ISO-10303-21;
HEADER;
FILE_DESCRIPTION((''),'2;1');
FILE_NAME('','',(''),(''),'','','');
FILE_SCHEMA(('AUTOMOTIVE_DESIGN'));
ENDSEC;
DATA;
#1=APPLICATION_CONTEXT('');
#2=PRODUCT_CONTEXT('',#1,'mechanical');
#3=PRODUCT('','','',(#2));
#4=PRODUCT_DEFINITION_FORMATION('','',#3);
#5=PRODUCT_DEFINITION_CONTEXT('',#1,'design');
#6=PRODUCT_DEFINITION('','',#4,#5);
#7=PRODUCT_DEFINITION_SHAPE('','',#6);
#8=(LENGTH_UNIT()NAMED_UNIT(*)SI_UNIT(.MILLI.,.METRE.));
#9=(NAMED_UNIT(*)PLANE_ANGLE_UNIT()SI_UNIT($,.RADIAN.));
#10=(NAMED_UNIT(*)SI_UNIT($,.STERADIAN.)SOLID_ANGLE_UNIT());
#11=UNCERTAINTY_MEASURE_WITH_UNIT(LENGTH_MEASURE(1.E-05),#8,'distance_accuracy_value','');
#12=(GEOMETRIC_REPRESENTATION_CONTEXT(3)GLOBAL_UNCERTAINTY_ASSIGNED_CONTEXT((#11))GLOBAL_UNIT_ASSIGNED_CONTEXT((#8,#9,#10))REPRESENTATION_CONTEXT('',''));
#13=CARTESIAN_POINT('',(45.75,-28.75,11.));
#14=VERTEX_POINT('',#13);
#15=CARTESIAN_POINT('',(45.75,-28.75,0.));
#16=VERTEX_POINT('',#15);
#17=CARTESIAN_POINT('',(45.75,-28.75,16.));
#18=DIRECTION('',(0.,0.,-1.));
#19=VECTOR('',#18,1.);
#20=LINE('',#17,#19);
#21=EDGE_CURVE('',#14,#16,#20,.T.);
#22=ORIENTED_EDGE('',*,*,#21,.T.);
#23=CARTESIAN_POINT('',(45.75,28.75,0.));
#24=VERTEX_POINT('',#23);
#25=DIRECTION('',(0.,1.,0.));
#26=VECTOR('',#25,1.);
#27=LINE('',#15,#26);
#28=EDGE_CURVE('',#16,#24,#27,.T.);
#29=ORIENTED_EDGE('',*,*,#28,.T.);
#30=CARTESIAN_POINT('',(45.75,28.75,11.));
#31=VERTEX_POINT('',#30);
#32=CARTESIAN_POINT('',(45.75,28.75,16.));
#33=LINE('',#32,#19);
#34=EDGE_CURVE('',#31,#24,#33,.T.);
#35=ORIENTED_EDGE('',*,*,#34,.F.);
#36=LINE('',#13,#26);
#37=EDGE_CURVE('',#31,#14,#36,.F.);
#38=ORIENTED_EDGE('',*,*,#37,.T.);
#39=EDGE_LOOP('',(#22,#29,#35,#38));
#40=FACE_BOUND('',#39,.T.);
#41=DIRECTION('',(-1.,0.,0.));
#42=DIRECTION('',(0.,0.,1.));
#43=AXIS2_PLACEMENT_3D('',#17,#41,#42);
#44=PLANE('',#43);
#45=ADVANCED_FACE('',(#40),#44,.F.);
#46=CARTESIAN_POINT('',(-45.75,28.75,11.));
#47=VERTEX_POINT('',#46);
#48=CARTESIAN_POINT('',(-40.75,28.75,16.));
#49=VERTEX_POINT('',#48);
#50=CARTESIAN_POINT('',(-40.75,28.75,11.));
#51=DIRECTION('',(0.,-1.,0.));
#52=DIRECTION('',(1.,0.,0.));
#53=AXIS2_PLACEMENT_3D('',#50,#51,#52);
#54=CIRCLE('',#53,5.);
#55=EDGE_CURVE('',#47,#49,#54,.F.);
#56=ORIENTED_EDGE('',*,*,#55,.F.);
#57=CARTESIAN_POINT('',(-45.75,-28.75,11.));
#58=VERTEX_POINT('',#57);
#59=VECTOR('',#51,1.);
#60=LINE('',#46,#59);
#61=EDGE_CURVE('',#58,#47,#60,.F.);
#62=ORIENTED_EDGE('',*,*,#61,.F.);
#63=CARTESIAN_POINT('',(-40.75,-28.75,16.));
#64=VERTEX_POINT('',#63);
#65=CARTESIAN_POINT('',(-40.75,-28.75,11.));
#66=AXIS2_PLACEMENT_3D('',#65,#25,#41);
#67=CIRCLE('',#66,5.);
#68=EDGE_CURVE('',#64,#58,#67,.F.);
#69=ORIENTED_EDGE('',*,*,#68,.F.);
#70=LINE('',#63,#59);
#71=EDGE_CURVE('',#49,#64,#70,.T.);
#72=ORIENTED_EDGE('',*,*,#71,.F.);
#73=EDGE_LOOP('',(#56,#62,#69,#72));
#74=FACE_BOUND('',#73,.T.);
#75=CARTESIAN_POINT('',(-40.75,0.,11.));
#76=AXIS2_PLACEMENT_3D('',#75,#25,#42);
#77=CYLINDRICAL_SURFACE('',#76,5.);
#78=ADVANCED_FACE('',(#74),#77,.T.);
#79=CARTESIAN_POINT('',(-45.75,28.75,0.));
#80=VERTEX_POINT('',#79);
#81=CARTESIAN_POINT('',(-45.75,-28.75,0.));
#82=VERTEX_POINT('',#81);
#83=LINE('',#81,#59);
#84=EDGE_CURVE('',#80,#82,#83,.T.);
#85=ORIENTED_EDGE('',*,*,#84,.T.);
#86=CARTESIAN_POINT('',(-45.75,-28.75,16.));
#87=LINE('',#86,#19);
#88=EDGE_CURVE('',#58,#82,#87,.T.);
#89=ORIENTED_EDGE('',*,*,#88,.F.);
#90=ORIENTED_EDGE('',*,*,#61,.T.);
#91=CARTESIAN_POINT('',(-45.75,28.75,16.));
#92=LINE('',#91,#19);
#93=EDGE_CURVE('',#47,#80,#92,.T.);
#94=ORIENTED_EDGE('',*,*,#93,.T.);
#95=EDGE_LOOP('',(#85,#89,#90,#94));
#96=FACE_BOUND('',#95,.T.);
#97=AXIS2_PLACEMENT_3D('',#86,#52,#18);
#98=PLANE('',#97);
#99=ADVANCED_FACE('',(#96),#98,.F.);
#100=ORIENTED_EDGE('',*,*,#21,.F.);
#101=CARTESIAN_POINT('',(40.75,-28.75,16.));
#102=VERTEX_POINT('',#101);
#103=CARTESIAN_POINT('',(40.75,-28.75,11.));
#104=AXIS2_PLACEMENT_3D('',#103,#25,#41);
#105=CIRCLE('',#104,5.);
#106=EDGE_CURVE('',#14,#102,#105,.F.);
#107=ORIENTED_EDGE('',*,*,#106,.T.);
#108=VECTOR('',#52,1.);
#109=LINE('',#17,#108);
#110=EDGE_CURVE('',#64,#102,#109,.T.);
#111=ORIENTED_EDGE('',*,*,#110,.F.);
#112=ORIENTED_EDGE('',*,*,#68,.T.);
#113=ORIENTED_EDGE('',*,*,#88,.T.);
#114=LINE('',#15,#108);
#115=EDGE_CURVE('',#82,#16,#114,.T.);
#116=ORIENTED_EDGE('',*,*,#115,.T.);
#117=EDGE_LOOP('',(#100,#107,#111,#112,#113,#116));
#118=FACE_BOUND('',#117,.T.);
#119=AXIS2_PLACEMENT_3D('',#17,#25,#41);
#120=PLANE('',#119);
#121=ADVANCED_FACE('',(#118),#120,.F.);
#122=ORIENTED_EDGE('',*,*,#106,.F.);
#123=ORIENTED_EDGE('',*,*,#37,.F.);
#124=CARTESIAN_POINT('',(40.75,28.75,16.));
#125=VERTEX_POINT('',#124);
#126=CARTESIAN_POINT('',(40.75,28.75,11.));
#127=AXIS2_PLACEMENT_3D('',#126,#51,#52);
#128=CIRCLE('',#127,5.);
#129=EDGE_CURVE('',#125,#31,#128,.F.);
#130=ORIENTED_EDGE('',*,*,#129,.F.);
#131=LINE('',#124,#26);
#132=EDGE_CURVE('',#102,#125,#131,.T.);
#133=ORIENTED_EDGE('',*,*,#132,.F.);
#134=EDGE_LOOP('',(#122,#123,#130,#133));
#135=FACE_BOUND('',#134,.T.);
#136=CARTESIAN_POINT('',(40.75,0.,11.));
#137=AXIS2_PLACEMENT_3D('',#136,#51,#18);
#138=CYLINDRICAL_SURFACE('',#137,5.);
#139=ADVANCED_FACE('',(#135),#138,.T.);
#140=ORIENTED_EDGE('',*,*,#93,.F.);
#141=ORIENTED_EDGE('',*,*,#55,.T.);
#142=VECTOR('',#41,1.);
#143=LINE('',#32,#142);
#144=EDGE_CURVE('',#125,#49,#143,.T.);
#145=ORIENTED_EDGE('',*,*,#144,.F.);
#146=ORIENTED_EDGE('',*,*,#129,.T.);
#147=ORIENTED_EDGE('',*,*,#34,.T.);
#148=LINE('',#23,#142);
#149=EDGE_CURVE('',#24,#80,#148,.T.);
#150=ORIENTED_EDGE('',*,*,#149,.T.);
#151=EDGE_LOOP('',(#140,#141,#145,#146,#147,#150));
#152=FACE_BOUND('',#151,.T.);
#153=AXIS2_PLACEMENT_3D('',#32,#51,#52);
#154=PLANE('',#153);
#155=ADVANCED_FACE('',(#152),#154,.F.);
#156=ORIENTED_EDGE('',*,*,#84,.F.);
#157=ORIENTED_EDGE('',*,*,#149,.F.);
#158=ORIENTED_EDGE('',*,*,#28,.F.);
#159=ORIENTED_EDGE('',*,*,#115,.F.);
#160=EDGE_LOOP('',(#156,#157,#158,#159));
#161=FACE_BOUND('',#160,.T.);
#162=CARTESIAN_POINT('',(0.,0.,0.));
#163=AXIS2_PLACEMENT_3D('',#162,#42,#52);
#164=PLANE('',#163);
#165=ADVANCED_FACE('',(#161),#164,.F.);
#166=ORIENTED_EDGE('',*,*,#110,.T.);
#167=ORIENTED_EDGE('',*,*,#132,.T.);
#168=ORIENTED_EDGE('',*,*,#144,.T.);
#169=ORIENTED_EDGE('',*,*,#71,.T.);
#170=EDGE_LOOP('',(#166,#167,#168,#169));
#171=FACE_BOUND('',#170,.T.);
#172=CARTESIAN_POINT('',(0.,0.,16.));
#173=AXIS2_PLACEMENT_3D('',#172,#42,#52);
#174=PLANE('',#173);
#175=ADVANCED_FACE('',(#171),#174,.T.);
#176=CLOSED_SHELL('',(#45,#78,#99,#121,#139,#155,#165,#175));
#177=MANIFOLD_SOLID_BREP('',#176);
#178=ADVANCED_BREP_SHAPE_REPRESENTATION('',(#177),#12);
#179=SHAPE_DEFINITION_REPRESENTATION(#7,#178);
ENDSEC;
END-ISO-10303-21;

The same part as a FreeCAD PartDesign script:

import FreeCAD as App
import Part
import Sketcher
Q = App.Units.Quantity


def edges_at(feature, points):
    """Names of the edges that pass closest to the given points."""
    edges = feature.Shape.Edges
    near = lambda p: min(range(len(edges)), key=lambda i: edges[i].distToShape(Part.Vertex(*p))[0])
    return sorted({f"Edge{near(p) + 1}" for p in points})


def add_polygon(sketch, points):
    """Adds a closed chain of lines whose ends are joined by coincident constraints."""
    first, n = sketch.GeometryCount, len(points)
    for a, b in zip(points, points[1:] + points[:1]):
        sketch.addGeometry(Part.LineSegment(App.Vector(*a, 0), App.Vector(*b, 0)), False)
    for i in range(n):
        sketch.addConstraint(Sketcher.Constraint("Coincident", first + i, 2, first + (i + 1) % n, 1))

doc = App.newDocument("Part")
params = doc.addObject("Spreadsheet::Sheet", "Params")
for row, (alias, value) in enumerate([
    ("sketch1_width", "91.5 mm"),
    ("sketch1_height", "57.5 mm"),
    ("pad1_length", "16 mm"),
    ("fillet_radius", "5 mm"),
], start=1):
    params.set(f"A{row}", alias)
    params.set(f"B{row}", "=" + value)
    params.setAlias(f"B{row}", alias)

body = doc.addObject("PartDesign::Body", "Body")

sketch1 = body.newObject("Sketcher::SketchObject", "Sketch")
sketch1.AttachmentSupport = (doc.getObject("XY_Plane"), [""])
sketch1.MapMode = "FlatFace"
add_polygon(sketch1, [(-46, 29), (-46, -29), (46, -29), (46, 29)])
sketch1.addConstraint([
    Sketcher.Constraint("Vertical", 0),
    Sketcher.Constraint("Horizontal", 1),
    Sketcher.Constraint("Vertical", 2),
    Sketcher.Constraint("Horizontal", 3),
    Sketcher.Constraint("Symmetric", 0, 2, 2, 2, -1, 1),
    Sketcher.Constraint("DistanceX", 1, 1, 1, 2, Q("91.5 mm")),
    Sketcher.Constraint("DistanceY", 0, 2, 0, 1, Q("57.5 mm")),
])
sketch1.setExpression("Constraints[9]", "Params.sketch1_width")
sketch1.setExpression("Constraints[10]", "Params.sketch1_height")
pad1 = body.newObject("PartDesign::Pad", "Pad")
pad1.Profile = sketch1
pad1.setExpression("Length", "Params.pad1_length")
doc.recompute()

fillet = body.newObject("PartDesign::Fillet", "Fillet")
fillet.Base = (pad1, edges_at(pad1, [(45.75, 0, 16), (-45.75, 0, 16)]))
fillet.setExpression("Radius", "Params.fillet_radius")

doc.recompute()
